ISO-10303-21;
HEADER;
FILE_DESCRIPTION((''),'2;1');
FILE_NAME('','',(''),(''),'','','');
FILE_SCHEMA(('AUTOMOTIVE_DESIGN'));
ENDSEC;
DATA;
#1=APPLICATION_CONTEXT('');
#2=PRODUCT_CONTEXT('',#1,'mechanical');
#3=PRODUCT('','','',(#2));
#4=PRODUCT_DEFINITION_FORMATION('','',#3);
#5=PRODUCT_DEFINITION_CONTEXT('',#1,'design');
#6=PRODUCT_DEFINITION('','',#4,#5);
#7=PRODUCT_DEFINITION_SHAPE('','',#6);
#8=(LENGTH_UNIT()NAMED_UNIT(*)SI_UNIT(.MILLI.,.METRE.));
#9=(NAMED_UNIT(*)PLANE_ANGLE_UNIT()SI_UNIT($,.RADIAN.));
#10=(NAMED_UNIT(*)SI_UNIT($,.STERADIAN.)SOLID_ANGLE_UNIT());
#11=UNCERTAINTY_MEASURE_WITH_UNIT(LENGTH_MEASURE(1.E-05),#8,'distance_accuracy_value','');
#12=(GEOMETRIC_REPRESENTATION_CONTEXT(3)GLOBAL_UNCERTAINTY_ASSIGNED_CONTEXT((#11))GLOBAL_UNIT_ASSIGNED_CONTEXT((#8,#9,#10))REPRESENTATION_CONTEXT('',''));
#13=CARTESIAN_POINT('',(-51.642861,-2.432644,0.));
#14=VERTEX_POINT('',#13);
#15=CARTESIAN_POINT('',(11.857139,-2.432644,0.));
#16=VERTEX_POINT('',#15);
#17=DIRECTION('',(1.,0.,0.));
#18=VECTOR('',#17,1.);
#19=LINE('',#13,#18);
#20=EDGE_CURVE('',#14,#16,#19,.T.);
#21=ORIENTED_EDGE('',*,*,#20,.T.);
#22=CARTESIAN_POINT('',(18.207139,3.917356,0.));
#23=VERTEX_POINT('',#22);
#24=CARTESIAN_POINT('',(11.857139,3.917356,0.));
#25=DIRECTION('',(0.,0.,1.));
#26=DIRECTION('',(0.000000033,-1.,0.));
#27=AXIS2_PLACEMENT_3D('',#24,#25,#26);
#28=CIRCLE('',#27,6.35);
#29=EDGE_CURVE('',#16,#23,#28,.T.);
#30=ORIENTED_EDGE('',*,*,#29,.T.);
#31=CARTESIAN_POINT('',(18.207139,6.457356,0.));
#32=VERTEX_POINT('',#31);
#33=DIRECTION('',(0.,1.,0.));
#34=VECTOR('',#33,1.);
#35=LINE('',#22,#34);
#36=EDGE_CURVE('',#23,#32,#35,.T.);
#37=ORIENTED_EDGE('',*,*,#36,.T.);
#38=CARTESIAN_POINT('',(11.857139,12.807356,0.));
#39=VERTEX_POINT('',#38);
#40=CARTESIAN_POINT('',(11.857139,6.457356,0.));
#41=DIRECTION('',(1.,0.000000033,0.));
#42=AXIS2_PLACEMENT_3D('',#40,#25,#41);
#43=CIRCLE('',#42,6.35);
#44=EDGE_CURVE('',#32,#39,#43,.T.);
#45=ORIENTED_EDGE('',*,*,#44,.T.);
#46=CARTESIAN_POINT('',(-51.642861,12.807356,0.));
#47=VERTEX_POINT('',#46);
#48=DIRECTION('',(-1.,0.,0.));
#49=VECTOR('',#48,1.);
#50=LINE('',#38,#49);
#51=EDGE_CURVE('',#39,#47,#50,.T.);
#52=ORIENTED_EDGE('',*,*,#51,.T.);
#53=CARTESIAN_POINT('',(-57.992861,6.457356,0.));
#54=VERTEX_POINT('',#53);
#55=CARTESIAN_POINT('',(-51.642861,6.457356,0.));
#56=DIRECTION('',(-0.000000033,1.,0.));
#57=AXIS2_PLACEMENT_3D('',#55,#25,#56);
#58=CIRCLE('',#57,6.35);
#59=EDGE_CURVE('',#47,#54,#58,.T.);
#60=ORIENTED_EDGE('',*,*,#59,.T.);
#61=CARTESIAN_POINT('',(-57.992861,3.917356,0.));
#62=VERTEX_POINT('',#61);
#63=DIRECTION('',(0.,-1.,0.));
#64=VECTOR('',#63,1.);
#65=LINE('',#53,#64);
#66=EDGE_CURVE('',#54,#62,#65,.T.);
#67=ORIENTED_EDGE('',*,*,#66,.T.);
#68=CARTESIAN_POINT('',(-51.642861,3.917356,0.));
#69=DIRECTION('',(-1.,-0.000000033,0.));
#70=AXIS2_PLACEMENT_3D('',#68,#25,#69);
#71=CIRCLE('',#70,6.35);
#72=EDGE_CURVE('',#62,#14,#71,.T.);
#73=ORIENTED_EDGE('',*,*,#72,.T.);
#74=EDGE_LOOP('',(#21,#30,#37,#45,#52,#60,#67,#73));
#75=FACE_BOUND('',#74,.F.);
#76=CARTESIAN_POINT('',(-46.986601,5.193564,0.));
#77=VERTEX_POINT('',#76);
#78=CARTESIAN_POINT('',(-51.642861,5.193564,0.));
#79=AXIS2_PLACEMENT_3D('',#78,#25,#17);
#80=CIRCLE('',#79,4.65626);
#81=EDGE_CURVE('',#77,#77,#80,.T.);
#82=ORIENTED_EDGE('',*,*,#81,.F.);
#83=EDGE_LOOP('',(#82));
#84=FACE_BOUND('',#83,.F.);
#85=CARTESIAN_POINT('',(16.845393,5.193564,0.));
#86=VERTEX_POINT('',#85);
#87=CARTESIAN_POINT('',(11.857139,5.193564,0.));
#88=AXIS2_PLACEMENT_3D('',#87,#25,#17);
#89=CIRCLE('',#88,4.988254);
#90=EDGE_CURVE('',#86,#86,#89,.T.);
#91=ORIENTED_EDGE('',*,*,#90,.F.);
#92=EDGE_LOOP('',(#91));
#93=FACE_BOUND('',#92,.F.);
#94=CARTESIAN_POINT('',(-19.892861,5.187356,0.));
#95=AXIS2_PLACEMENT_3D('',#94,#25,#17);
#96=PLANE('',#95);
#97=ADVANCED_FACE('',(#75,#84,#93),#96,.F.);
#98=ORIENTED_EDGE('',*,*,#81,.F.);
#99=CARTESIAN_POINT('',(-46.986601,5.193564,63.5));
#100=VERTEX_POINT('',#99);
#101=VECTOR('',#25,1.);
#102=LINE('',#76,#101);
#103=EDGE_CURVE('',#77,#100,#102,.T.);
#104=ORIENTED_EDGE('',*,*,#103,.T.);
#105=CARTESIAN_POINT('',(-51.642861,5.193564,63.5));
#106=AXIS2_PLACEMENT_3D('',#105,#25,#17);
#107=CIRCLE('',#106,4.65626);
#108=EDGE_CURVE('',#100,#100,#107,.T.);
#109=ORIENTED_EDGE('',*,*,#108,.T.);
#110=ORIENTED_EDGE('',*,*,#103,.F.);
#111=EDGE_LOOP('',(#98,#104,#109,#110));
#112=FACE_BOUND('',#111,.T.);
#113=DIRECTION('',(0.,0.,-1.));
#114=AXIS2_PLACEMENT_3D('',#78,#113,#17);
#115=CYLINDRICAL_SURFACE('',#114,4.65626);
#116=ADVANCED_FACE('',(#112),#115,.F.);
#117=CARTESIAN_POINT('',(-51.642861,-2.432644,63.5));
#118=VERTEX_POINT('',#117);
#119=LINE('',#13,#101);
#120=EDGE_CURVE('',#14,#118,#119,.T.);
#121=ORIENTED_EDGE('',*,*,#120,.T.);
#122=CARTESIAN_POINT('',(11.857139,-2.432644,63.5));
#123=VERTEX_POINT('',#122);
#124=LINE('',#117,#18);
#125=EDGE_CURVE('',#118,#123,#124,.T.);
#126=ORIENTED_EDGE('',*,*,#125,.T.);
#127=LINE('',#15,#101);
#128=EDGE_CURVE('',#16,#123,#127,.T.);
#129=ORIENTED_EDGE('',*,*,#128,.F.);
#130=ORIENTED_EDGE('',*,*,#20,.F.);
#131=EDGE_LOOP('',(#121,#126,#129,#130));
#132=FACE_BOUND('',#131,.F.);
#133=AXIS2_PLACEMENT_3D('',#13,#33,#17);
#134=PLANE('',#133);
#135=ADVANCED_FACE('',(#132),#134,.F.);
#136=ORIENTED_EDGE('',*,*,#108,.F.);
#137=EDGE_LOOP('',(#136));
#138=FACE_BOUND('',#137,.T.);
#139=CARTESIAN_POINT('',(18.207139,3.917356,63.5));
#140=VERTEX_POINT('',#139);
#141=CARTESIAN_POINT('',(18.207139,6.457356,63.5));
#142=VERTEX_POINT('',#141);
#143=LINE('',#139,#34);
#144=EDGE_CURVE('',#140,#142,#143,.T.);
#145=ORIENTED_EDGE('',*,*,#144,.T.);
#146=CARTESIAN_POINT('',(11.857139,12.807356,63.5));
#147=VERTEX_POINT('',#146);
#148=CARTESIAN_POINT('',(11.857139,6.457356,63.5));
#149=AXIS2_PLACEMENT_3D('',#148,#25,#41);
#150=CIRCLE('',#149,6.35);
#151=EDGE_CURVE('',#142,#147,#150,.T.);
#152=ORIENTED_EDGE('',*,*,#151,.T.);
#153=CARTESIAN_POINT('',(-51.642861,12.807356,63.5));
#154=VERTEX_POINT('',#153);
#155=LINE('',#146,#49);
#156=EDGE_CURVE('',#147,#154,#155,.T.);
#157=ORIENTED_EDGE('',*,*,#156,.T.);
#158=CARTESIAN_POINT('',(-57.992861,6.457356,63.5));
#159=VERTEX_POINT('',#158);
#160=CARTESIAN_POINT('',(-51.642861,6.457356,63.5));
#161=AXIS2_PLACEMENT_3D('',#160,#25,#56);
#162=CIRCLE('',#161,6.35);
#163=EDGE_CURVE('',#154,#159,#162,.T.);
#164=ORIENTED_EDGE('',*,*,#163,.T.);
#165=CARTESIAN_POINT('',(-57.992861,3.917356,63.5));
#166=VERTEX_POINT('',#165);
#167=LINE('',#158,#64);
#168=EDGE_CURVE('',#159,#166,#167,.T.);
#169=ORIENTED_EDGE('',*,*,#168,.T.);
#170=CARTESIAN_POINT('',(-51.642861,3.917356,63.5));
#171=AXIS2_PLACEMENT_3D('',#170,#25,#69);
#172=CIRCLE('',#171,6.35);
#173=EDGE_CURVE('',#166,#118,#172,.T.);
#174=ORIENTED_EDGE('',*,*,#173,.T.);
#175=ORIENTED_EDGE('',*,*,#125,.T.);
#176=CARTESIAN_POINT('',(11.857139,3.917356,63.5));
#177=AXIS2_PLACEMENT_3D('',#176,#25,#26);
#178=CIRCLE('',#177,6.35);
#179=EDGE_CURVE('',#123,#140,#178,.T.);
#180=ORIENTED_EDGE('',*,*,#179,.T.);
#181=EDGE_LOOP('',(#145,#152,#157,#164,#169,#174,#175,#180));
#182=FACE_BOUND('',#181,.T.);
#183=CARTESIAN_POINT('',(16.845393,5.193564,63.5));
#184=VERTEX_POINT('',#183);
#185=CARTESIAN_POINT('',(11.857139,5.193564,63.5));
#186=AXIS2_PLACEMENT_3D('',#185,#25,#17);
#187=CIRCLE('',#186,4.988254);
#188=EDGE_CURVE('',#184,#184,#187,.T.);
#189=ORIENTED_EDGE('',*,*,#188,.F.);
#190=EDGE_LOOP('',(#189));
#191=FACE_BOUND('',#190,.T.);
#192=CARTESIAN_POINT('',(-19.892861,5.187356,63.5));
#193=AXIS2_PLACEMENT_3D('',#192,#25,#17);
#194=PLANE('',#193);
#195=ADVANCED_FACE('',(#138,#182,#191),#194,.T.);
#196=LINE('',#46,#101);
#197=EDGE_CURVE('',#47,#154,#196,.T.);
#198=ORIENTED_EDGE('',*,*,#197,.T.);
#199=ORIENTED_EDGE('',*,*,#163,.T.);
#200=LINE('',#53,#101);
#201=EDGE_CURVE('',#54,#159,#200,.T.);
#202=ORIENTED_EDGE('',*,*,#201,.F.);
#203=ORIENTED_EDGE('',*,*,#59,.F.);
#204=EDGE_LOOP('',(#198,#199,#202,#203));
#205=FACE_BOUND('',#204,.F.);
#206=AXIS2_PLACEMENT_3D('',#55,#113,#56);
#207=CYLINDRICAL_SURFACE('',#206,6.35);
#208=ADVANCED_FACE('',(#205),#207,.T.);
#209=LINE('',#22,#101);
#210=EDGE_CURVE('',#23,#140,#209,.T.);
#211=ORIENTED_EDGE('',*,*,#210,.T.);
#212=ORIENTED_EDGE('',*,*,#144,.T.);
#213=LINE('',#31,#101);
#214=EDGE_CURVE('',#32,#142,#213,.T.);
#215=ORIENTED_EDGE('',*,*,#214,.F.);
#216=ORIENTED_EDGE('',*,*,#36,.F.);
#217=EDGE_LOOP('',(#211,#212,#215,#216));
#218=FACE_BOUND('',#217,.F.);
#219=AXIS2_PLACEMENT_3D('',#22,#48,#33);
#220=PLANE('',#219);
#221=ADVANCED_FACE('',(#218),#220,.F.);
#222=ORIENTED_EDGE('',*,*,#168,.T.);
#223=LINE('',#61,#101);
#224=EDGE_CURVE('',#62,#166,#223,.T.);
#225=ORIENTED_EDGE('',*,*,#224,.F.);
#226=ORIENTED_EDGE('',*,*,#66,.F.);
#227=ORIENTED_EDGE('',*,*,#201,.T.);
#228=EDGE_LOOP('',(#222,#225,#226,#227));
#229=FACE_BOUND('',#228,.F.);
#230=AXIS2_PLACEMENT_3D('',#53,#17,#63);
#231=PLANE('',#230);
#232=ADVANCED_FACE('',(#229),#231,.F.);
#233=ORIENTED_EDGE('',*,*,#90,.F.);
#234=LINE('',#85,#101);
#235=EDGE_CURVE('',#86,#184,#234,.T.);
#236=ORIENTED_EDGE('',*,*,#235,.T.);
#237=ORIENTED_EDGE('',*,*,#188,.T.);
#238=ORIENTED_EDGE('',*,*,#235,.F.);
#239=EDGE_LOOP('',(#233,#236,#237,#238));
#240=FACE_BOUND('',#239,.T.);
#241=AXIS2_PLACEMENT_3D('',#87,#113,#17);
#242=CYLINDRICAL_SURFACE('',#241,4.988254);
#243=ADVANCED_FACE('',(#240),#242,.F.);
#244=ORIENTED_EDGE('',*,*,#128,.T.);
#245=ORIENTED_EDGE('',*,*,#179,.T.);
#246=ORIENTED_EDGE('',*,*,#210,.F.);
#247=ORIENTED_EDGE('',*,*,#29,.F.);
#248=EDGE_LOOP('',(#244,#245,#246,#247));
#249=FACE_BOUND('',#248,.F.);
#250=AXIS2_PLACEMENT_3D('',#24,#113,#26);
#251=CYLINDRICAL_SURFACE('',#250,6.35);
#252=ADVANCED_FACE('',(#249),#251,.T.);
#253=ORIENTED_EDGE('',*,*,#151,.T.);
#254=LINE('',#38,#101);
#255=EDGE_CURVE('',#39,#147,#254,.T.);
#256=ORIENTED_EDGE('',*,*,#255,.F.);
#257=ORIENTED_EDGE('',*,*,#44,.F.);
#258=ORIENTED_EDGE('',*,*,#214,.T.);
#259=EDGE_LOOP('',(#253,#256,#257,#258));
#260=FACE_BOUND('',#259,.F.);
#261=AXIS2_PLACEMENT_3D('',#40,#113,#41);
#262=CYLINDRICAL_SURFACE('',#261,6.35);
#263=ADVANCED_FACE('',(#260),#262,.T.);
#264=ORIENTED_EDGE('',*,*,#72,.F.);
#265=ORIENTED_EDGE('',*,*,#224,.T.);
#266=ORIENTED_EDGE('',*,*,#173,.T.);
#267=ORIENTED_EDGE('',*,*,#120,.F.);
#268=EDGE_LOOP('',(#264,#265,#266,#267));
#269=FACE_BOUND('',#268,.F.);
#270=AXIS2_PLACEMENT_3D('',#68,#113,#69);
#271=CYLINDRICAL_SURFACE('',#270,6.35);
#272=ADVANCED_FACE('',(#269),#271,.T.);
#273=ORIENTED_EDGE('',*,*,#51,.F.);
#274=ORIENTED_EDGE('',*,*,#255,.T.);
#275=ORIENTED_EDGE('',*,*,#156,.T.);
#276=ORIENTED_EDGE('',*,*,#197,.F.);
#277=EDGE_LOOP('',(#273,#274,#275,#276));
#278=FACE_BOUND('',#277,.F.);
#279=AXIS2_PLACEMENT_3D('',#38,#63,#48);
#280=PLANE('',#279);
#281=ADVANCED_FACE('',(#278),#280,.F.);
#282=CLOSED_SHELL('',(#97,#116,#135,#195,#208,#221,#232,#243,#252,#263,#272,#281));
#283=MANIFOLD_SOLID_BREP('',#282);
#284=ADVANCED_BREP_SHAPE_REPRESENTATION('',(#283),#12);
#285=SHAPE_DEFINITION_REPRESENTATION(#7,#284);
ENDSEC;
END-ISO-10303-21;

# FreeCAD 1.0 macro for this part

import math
import FreeCAD as App
import Part
import Sketcher
from FreeCAD import Vector
Q = App.Units.Quantity

doc = App.newDocument("Part")
params = doc.addObject("Spreadsheet::Sheet", "Params")
for row, (alias, value) in enumerate([
    ("sketch1_radius", "0.25 in"),
    ("sketch1_width", "2.5 in"),
    ("sketch1_height", "0.1 in"),
    ("pad1_length", "2.5 in"),
], start=1):
    params.set(f"A{row}", alias)
    params.set(f"B{row}", "=" + value)
    params.setAlias(f"B{row}", alias)

body = doc.addObject("PartDesign::Body", "Body")

# Sketch on XY plane
sketch1 = body.newObject("Sketcher::SketchObject", "Sketch")
sketch1.AttachmentSupport = (doc.getObject("XY_Plane"), [""])
sketch1.MapMode = "FlatFace"
sketch1.addGeometry(Part.LineSegment(Vector(11.9, 12.8, 0), Vector(-51.6, 12.8, 0)), False)
sketch1.addGeometry(Part.ArcOfCircle(Part.Circle(Vector(-51.6, 6.5, 0), Vector(0, 0, 1), 6.4), math.radians(90), math.radians(180)), False)
sketch1.addGeometry(Part.LineSegment(Vector(-58, 6.5, 0), Vector(-58, 3.9, 0)), False)
sketch1.addGeometry(Part.ArcOfCircle(Part.Circle(Vector(-51.6, 3.9, 0), Vector(0, 0, 1), 6.4), math.radians(-180), math.radians(-90)), False)
sketch1.addGeometry(Part.LineSegment(Vector(-51.6, -2.4, 0), Vector(11.9, -2.4, 0)), False)
sketch1.addGeometry(Part.ArcOfCircle(Part.Circle(Vector(11.9, 3.9, 0), Vector(0, 0, 1), 6.4), math.radians(-90), math.radians(0)), False)
sketch1.addGeometry(Part.LineSegment(Vector(18.2, 3.9, 0), Vector(18.2, 6.5, 0)), False)
sketch1.addGeometry(Part.ArcOfCircle(Part.Circle(Vector(11.9, 6.5, 0), Vector(0, 0, 1), 6.4), math.radians(0), math.radians(90)), False)
sketch1.addGeometry(Part.Circle(Vector(-51.6, 5.2, 0), Vector(0, 0, 1), 4.7), False)
sketch1.addGeometry(Part.Circle(Vector(11.9, 5.2, 0), Vector(0, 0, 1), 5), False)
sketch1.addConstraint(Sketcher.Constraint("Tangent", 0, 2, 1, 1))
sketch1.addConstraint(Sketcher.Constraint("Tangent", 1, 2, 2, 1))
sketch1.addConstraint(Sketcher.Constraint("Tangent", 2, 2, 3, 1))
sketch1.addConstraint(Sketcher.Constraint("Tangent", 3, 2, 4, 1))
sketch1.addConstraint(Sketcher.Constraint("Tangent", 4, 2, 5, 1))
sketch1.addConstraint(Sketcher.Constraint("Tangent", 5, 2, 6, 1))
sketch1.addConstraint(Sketcher.Constraint("Tangent", 6, 2, 7, 1))
sketch1.addConstraint(Sketcher.Constraint("Tangent", 7, 2, 0, 1))
sketch1.addConstraint(Sketcher.Constraint("Horizontal", 0))
sketch1.addConstraint(Sketcher.Constraint("Vertical", 2))
sketch1.addConstraint(Sketcher.Constraint("Horizontal", 4))
sketch1.addConstraint(Sketcher.Constraint("Vertical", 6))
sketch1.addConstraint(Sketcher.Constraint("Equal", 1, 3))
sketch1.addConstraint(Sketcher.Constraint("Equal", 3, 5))
sketch1.addConstraint(Sketcher.Constraint("Equal", 5, 7))
sketch1.addConstraint(Sketcher.Constraint("Horizontal", 8, 3, 9, 3))
sketch1.addConstraint(Sketcher.Constraint("Vertical", 3, 3, 8, 3))
sketch1.addConstraint(Sketcher.Constraint("Vertical", 7, 3, 9, 3))
sketch1.addConstraint(Sketcher.Constraint("Radius", 1, Q("0.25 in")))
sketch1.addConstraint(Sketcher.Constraint("DistanceX", 0, 2, 0, 1, Q("2.5 in")))
sketch1.addConstraint(Sketcher.Constraint("DistanceY", 2, 2, 2, 1, Q("0.1 in")))
sketch1.addConstraint(Sketcher.Constraint("Diameter", 8, 9.31252))
sketch1.addConstraint(Sketcher.Constraint("Diameter", 9, 9.976508))
sketch1.addConstraint(Sketcher.Constraint("DistanceX", 1, 3, -1, 1, 51.642861))
sketch1.addConstraint(Sketcher.Constraint("DistanceY", 8, 3, 1, 3, 1.263792))
sketch1.addConstraint(Sketcher.Constraint("DistanceY", -1, 1, 1, 3, 6.457356))
sketch1.setExpression("Constraints[18]", "Params.sketch1_radius")
sketch1.setExpression("Constraints[19]", "Params.sketch1_width")
sketch1.setExpression("Constraints[20]", "Params.sketch1_height")
pad1 = body.newObject("PartDesign::Pad", "Pad")
pad1.Profile = sketch1
pad1.setExpression("Length", "Params.pad1_length")

doc.recompute()
